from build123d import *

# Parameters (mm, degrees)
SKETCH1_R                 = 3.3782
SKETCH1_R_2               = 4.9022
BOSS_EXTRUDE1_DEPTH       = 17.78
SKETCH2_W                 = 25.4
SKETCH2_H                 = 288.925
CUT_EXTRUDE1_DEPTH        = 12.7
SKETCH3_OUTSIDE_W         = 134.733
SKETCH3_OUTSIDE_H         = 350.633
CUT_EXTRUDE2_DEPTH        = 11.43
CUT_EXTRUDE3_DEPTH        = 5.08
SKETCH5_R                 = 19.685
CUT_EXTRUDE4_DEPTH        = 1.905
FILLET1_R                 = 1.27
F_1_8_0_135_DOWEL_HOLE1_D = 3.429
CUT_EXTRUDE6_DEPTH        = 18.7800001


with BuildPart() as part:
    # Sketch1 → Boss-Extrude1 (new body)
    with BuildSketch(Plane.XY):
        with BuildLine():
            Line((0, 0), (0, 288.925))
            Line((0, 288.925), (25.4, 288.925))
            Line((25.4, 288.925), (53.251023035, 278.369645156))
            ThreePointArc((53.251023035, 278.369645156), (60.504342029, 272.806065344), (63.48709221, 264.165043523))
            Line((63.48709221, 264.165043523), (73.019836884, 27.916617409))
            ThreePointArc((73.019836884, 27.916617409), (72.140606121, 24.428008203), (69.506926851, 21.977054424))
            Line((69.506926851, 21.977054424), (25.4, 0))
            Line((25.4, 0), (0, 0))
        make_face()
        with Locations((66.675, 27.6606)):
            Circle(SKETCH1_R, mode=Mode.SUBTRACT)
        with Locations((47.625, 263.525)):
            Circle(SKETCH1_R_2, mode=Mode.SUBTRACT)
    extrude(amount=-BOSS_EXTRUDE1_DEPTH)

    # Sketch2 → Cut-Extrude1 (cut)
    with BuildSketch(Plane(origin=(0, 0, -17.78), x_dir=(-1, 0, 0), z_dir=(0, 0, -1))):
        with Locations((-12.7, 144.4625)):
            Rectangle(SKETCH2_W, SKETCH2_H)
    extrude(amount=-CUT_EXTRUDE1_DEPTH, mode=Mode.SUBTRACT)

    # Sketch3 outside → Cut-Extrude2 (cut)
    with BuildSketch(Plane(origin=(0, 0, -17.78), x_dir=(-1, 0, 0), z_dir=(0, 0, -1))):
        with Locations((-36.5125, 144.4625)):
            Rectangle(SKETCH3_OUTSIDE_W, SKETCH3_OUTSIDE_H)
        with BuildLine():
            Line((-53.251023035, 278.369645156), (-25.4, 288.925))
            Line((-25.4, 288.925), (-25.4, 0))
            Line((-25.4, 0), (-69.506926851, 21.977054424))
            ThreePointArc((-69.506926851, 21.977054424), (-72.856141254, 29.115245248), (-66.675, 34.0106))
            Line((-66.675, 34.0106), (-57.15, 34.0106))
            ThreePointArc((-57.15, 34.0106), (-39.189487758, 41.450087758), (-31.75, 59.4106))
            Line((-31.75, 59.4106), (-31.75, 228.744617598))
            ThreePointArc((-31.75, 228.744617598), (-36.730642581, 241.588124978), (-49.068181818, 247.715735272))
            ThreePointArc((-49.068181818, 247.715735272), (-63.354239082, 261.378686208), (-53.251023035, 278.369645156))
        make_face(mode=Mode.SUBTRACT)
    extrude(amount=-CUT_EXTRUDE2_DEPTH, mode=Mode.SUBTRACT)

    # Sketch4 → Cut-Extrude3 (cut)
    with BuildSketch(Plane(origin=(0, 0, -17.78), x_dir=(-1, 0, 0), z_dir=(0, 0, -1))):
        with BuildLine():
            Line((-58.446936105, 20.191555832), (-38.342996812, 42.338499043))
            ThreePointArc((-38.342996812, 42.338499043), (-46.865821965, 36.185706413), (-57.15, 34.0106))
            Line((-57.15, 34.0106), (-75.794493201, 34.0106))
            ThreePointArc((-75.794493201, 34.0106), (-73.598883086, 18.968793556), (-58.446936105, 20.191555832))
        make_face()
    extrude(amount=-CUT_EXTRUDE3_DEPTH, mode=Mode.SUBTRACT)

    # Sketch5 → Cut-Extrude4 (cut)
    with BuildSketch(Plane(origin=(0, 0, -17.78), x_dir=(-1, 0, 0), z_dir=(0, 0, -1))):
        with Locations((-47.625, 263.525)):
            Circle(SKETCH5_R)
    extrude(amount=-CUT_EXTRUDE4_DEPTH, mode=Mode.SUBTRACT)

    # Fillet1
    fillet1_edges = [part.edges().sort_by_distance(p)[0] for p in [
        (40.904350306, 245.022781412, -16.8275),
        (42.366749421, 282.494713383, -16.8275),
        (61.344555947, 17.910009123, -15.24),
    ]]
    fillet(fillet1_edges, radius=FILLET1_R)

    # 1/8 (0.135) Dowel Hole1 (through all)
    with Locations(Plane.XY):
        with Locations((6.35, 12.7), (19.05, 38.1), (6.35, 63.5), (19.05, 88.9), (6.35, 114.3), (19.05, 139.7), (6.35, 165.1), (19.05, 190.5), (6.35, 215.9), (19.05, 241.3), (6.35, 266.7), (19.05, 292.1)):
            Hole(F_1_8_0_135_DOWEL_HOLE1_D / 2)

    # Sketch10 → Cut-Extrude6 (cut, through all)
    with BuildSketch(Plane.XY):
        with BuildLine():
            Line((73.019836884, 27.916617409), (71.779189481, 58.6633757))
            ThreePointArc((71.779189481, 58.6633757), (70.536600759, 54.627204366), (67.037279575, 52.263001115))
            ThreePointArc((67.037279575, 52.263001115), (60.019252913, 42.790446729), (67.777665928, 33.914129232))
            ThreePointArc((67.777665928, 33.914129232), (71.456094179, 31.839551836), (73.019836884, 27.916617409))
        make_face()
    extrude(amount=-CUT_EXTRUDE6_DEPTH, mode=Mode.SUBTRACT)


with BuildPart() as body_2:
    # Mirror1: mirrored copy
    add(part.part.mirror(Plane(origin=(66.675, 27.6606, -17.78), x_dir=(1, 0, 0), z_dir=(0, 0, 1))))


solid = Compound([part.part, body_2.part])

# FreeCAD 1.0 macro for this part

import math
import FreeCAD as App
import Part
import Sketcher

V = App.Vector
Q = App.Units.Quantity


def edges_at(feature, points):
    """Names of the edges that pass closest to the given points."""
    edges = feature.Shape.Edges
    near = lambda p: min(range(len(edges)), key=lambda i: edges[i].distToShape(Part.Vertex(*p))[0])
    return sorted({f"Edge{near(p) + 1}" for p in points})


def add_polygon(sketch, points):
    """Adds a closed chain of lines whose ends are joined by coincident constraints."""
    first, n = sketch.GeometryCount, len(points)
    for a, b in zip(points, points[1:] + points[:1]):
        sketch.addGeometry(Part.LineSegment(App.Vector(*a, 0), App.Vector(*b, 0)), False)
    for i in range(n):
        sketch.addConstraint(Sketcher.Constraint("Coincident", first + i, 2, first + (i + 1) % n, 1))

doc = App.newDocument("Part")
body = doc.addObject("PartDesign::Body", "Body")

# Sketch on XY plane
sketch1 = body.newObject("Sketcher::SketchObject", "Sketch")
sketch1.AttachmentSupport = (doc.getObject("XY_Plane"), [""])
sketch1.MapMode = "FlatFace"
sketch1.addGeometry(Part.LineSegment(V(0, 288.925, 0), V(0, 0, 0)), False)
sketch1.addGeometry(Part.LineSegment(V(0, 0, 0), V(25.4, 0, 0)), False)
sketch1.addGeometry(Part.LineSegment(V(25.4, 0, 0), V(69.506927, 21.977054, 0)), False)
sketch1.addGeometry(Part.ArcOfCircle(Part.Circle(V(66.675, 27.6606, 0), V(0, 0, 1), 6.35), math.radians(-63.514409), math.radians(2.31066)), False)
sketch1.addGeometry(Part.LineSegment(V(73.019837, 27.916617, 0), V(63.487092, 264.165044, 0)), False)
sketch1.addGeometry(Part.ArcOfCircle(Part.Circle(V(47.625, 263.525, 0), V(0, 0, 1), 15.875), math.radians(2.31066), math.radians(69.243621)), False)
sketch1.addGeometry(Part.LineSegment(V(53.251023, 278.369645, 0), V(25.4, 288.925, 0)), False)
sketch1.addGeometry(Part.LineSegment(V(25.4, 288.925, 0), V(0, 288.925, 0)), False)
sketch1.addGeometry(Part.Circle(V(66.675, 27.6606, 0), V(0, 0, 1), 3.3782), False)
sketch1.addGeometry(Part.Circle(V(47.625, 263.525, 0), V(0, 0, 1), 4.9022), False)
sketch1.addConstraint(Sketcher.Constraint("Coincident", 0, 2, 1, 1))
sketch1.addConstraint(Sketcher.Constraint("Coincident", 1, 2, 2, 1))
sketch1.addConstraint(Sketcher.Constraint("Tangent", 2, 2, 3, 1))
sketch1.addConstraint(Sketcher.Constraint("Tangent", 3, 2, 4, 1))
sketch1.addConstraint(Sketcher.Constraint("Tangent", 4, 2, 5, 1))
sketch1.addConstraint(Sketcher.Constraint("Tangent", 5, 2, 6, 1))
sketch1.addConstraint(Sketcher.Constraint("Coincident", 6, 2, 7, 1))
sketch1.addConstraint(Sketcher.Constraint("Coincident", 7, 2, 0, 1))
sketch1.addConstraint(Sketcher.Constraint("Vertical", 0))
sketch1.addConstraint(Sketcher.Constraint("Horizontal", 1))
sketch1.addConstraint(Sketcher.Constraint("Horizontal", 7))
sketch1.addConstraint(Sketcher.Constraint("Coincident", 0, 2, -1, 1))
sketch1.addConstraint(Sketcher.Constraint("Coincident", 8, 3, 3, 3))
sketch1.addConstraint(Sketcher.Constraint("Coincident", 9, 3, 5, 3))
sketch1.addConstraint(Sketcher.Constraint("Vertical", 1, 2, 6, 2))
sketch1.addConstraint(Sketcher.Constraint("DistanceX", 1, 1, 1, 2, Q("1 in")))
sketch1.addConstraint(Sketcher.Constraint("Radius", 3, Q("0.25 in")))
sketch1.addConstraint(Sketcher.Constraint("Diameter", 8, Q("0.266 in")))
sketch1.addConstraint(Sketcher.Constraint("Diameter", 9, Q("0.386 in")))
sketch1.addConstraint(Sketcher.Constraint("Radius", 5, Q("0.625 in")))
sketch1.addConstraint(Sketcher.Constraint("DistanceY", 9, 3, 6, 2, Q("1 in")))
sketch1.addConstraint(Sketcher.Constraint("DistanceY", 0, 2, 0, 1, Q("11.375 in")))
sketch1.addConstraint(Sketcher.Constraint("DistanceX", 5, 3, 3, 3, Q("0.75 in")))
sketch1.addConstraint(Sketcher.Constraint("DistanceX", -1, 1, 3, 3, Q("2.625 in")))
sketch1.addConstraint(Sketcher.Constraint("DistanceY", -1, 1, 3, 3, Q("1.089 in")))
pad1 = body.newObject("PartDesign::Pad", "Pad")
pad1.Profile = sketch1
pad1.Length = Q("0.7 in")
pad1.Reversed = True

# Sketch on XY plane
sketch2 = body.newObject("Sketcher::SketchObject", "Sketch001")
sketch2.AttachmentSupport = (doc.getObject("XY_Plane"), [""])
sketch2.MapMode = "FlatFace"
sketch2.AttachmentOffset = App.Placement(V(0, 0, -0.7 * 25.4), App.Rotation())
add_polygon(sketch2, [(25.4, 288.925), (25.4, 0), (0, 0), (0, 288.925)])  # lines 0-3
sketch2.addConstraint(Sketcher.Constraint("Vertical", 0))
sketch2.addConstraint(Sketcher.Constraint("Horizontal", 1))
sketch2.addConstraint(Sketcher.Constraint("Vertical", 2))
sketch2.addConstraint(Sketcher.Constraint("Horizontal", 3))
sketch2.addConstraint(Sketcher.Constraint("Coincident", 1, 2, -1, 1))
sketch2.addConstraint(Sketcher.Constraint("DistanceX", 1, 2, 1, 1, Q("1 in")))
sketch2.addConstraint(Sketcher.Constraint("DistanceY", 0, 2, 0, 1, Q("11.375 in")))
pocket1 = body.newObject("PartDesign::Pocket", "Pocket")
pocket1.Profile = sketch2
pocket1.Length = Q("0.5 in")
pocket1.Reversed = True

# Sketch on XY plane
sketch3 = body.newObject("Sketcher::SketchObject", "Sketch002")
sketch3.AttachmentSupport = (doc.getObject("XY_Plane"), [""])
sketch3.MapMode = "FlatFace"
sketch3.AttachmentOffset = App.Placement(V(0, 0, -0.7 * 25.4), App.Rotation())
add_polygon(sketch3, [(103.879, 319.779), (103.879, -30.854), (-30.854, -30.854), (-30.854, 319.779)])  # lines 0-3
sketch3.addGeometry(Part.ArcOfCircle(Part.Circle(V(47.625, 263.525, 0), V(0, 0, 1), 15.875), math.radians(-84.784091), math.radians(69.243621)), False)  # 4
sketch3.addGeometry(Part.LineSegment(V(53.251023, 278.369645, 0), V(25.4, 288.925, 0)), False)  # 5
sketch3.addGeometry(Part.LineSegment(V(25.4, 288.925, 0), V(25.4, 0, 0)), False)  # 6
sketch3.addGeometry(Part.LineSegment(V(25.4, 0, 0), V(69.506927, 21.977054, 0)), False)  # 7
sketch3.addGeometry(Part.ArcOfCircle(Part.Circle(V(66.675, 27.6606, 0), V(0, 0, 1), 6.35), math.radians(-63.514409), math.radians(90)), False)  # 8
sketch3.addGeometry(Part.LineSegment(V(66.675, 34.0106, 0), V(57.15, 34.0106, 0)), False)  # 9
sketch3.addGeometry(Part.ArcOfCircle(Part.Circle(V(57.15, 59.4106, 0), V(0, 0, 1), 25.4), math.radians(180), math.radians(270)), False)  # 10
sketch3.addGeometry(Part.LineSegment(V(31.75, 59.4106, 0), V(31.75, 228.744618, 0)), False)  # 11
sketch3.addGeometry(Part.ArcOfCircle(Part.Circle(V(50.8, 228.744618, 0), V(0, 0, 1), 19.05), math.radians(95.215909), math.radians(180)), False)  # 12
sketch3.addConstraint(Sketcher.Constraint("Tangent", 4, 2, 5, 1))
sketch3.addConstraint(Sketcher.Constraint("Coincident", 5, 2, 6, 1))
sketch3.addConstraint(Sketcher.Constraint("Coincident", 6, 2, 7, 1))
sketch3.addConstraint(Sketcher.Constraint("Tangent", 7, 2, 8, 1))
sketch3.addConstraint(Sketcher.Constraint("Tangent", 8, 2, 9, 1))
sketch3.addConstraint(Sketcher.Constraint("Tangent", 9, 2, 10, 2))
sketch3.addConstraint(Sketcher.Constraint("Tangent", 10, 1, 11, 1))
sketch3.addConstraint(Sketcher.Constraint("Tangent", 11, 2, 12, 2))
sketch3.addConstraint(Sketcher.Constraint("Tangent", 12, 1, 4, 1))
sketch3.addConstraint(Sketcher.Constraint("Vertical", 0))
sketch3.addConstraint(Sketcher.Constraint("Horizontal", 1))
sketch3.addConstraint(Sketcher.Constraint("Vertical", 2))
sketch3.addConstraint(Sketcher.Constraint("Horizontal", 3))
sketch3.addConstraint(Sketcher.Constraint("Vertical", 6))
sketch3.addConstraint(Sketcher.Constraint("Horizontal", 9))
sketch3.addConstraint(Sketcher.Constraint("Vertical", 11))
sketch3.addConstraint(Sketcher.Constraint("PointOnObject", 6, 2, -1))
sketch3.addConstraint(Sketcher.Constraint("Radius", 10, Q("1 in")))
sketch3.addConstraint(Sketcher.Constraint("Radius", 8, Q("0.25 in")))
sketch3.addConstraint(Sketcher.Constraint("Radius", 12, Q("0.75 in")))
sketch3.addConstraint(Sketcher.Constraint("DistanceX", -1, 1, 12, 3, Q("2 in")))
sketch3.addConstraint(Sketcher.Constraint("DistanceX", -1, 1, 5, 2, Q("1 in")))
sketch3.addConstraint(Sketcher.Constraint("Radius", 4, Q("0.625 in")))
sketch3.addConstraint(Sketcher.Constraint("DistanceY", 4, 3, 5, 2, Q("1 in")))
sketch3.addConstraint(Sketcher.Constraint("DistanceX", 9, 2, 9, 1, Q("0.375 in")))
sketch3.addConstraint(Sketcher.Constraint("DistanceY", 6, 2, 6, 1, Q("11.375 in")))
sketch3.addConstraint(Sketcher.Constraint("DistanceX", 4, 3, 8, 3, Q("0.75 in")))
sketch3.addConstraint(Sketcher.Constraint("DistanceY", -1, 1, 8, 3, Q("1.089 in")))
sketch3.addConstraint(Sketcher.Constraint("DistanceX", 1, 2, 1, 1, Q("134.733 mm")))
sketch3.addConstraint(Sketcher.Constraint("DistanceY", 0, 2, 0, 1, Q("350.633 mm")))
sketch3.addConstraint(Sketcher.Constraint("DistanceX", -1, 1, 0, 2, Q("103.879 mm")))
sketch3.addConstraint(Sketcher.Constraint("DistanceY", 0, 2, -1, 1, Q("30.854 mm")))
pocket2 = body.newObject("PartDesign::Pocket", "Pocket001")
pocket2.Profile = sketch3
pocket2.Length = Q("0.45 in")
pocket2.Reversed = True

# Sketch on XY plane
sketch4 = body.newObject("Sketcher::SketchObject", "Sketch003")
sketch4.AttachmentSupport = (doc.getObject("XY_Plane"), [""])
sketch4.MapMode = "FlatFace"
sketch4.AttachmentOffset = App.Placement(V(0, 0, -0.7 * 25.4), App.Rotation())
sketch4.addGeometry(Part.LineSegment(V(58.446936, 20.191556, 0), V(38.342997, 42.338499, 0)), False)
sketch4.addGeometry(Part.ArcOfCircle(Part.Circle(V(57.15, 59.4106, 0), V(0, 0, 1), 25.4), math.radians(-137.76833), math.radians(-90)), False)
sketch4.addGeometry(Part.LineSegment(V(57.15, 34.0106, 0), V(75.794493, 34.0106, 0)), False)
sketch4.addGeometry(Part.ArcOfCircle(Part.Circle(V(66.675, 27.6606, 0), V(0, 0, 1), 11.1125), math.radians(-137.76833), math.radians(34.849905)), False)
sketch4.addConstraint(Sketcher.Constraint("Tangent", 0, 2, 1, 1))
sketch4.addConstraint(Sketcher.Constraint("Tangent", 1, 2, 2, 1))
sketch4.addConstraint(Sketcher.Constraint("Coincident", 2, 2, 3, 2))
sketch4.addConstraint(Sketcher.Constraint("Tangent", 3, 1, 0, 1))
sketch4.addConstraint(Sketcher.Constraint("Horizontal", 2))
sketch4.addConstraint(Sketcher.Constraint("Radius", 1, Q("1 in")))
sketch4.addConstraint(Sketcher.Constraint("Radius", 3, Q("0.4375 in")))
sketch4.addConstraint(Sketcher.Constraint("DistanceX", -1, 1, 1, 3, Q("2.25 in")))
sketch4.addConstraint(Sketcher.Constraint("DistanceY", 3, 3, 1, 3, Q("1.25 in")))
sketch4.addConstraint(Sketcher.Constraint("DistanceY", -1, 1, 1, 3, Q("2.339 in")))
sketch4.addConstraint(Sketcher.Constraint("DistanceX", -1, 1, 3, 3, Q("2.625 in")))
pocket3 = body.newObject("PartDesign::Pocket", "Pocket002")
pocket3.Profile = sketch4
pocket3.Length = Q("0.2 in")
pocket3.Reversed = True

# Sketch on XY plane
sketch5 = body.newObject("Sketcher::SketchObject", "Sketch004")
sketch5.AttachmentSupport = (doc.getObject("XY_Plane"), [""])
sketch5.MapMode = "FlatFace"
sketch5.AttachmentOffset = App.Placement(V(0, 0, -0.7 * 25.4), App.Rotation())
sketch5.addGeometry(Part.Circle(V(47.625, 263.525, 0), V(0, 0, 1), 19.685), False)
sketch5.addConstraint(Sketcher.Constraint("Diameter", 0, Q("1.55 in")))
sketch5.addConstraint(Sketcher.Constraint("DistanceX", -1, 1, 0, 3, Q("1.875 in")))
sketch5.addConstraint(Sketcher.Constraint("DistanceY", -1, 1, 0, 3, Q("10.375 in")))
pocket4 = body.newObject("PartDesign::Pocket", "Pocket003")
pocket4.Profile = sketch5
pocket4.Length = Q("0.075 in")
pocket4.Reversed = True
doc.recompute()

fillet = body.newObject("PartDesign::Fillet", "Fillet")
fillet.Base = (pocket4, edges_at(pocket4, [(40.904, 245.023, -16.828), (42.367, 282.495, -16.828), (61.345, 17.91, -15.24)]))
fillet.Radius = Q("0.05 in")

# Sketch on XY plane
sketch6 = body.newObject("Sketcher::SketchObject", "Sketch005")
sketch6.AttachmentSupport = (doc.getObject("XY_Plane"), [""])
sketch6.MapMode = "FlatFace"
sketch6.addGeometry(Part.Circle(V(6.35, 12.7, 0), V(0, 0, 1), 1.7145), False)
sketch6.addGeometry(Part.Circle(V(19.05, 38.1, 0), V(0, 0, 1), 1.7145), False)
sketch6.addGeometry(Part.Circle(V(6.35, 63.5, 0), V(0, 0, 1), 1.7145), False)
sketch6.addGeometry(Part.Circle(V(19.05, 88.9, 0), V(0, 0, 1), 1.7145), False)
sketch6.addGeometry(Part.Circle(V(6.35, 114.3, 0), V(0, 0, 1), 1.7145), False)
sketch6.addGeometry(Part.Circle(V(19.05, 139.7, 0), V(0, 0, 1), 1.7145), False)
sketch6.addGeometry(Part.Circle(V(6.35, 165.1, 0), V(0, 0, 1), 1.7145), False)
sketch6.addGeometry(Part.Circle(V(19.05, 190.5, 0), V(0, 0, 1), 1.7145), False)
sketch6.addGeometry(Part.Circle(V(6.35, 215.9, 0), V(0, 0, 1), 1.7145), False)
sketch6.addGeometry(Part.Circle(V(19.05, 241.3, 0), V(0, 0, 1), 1.7145), False)
sketch6.addGeometry(Part.Circle(V(6.35, 266.7, 0), V(0, 0, 1), 1.7145), False)
sketch6.addGeometry(Part.Circle(V(19.05, 292.1, 0), V(0, 0, 1), 1.7145), False)
sketch6.addConstraint(Sketcher.Constraint("Equal", 0, 1))
sketch6.addConstraint(Sketcher.Constraint("Equal", 1, 2))
sketch6.addConstraint(Sketcher.Constraint("Equal", 2, 3))
sketch6.addConstraint(Sketcher.Constraint("Equal", 3, 4))
sketch6.addConstraint(Sketcher.Constraint("Equal", 4, 5))
sketch6.addConstraint(Sketcher.Constraint("Equal", 5, 6))
sketch6.addConstraint(Sketcher.Constraint("Equal", 6, 7))
sketch6.addConstraint(Sketcher.Constraint("Equal", 7, 8))
sketch6.addConstraint(Sketcher.Constraint("Equal", 8, 9))
sketch6.addConstraint(Sketcher.Constraint("Equal", 9, 10))
sketch6.addConstraint(Sketcher.Constraint("Equal", 10, 11))
sketch6.addConstraint(Sketcher.Constraint("Vertical", 0, 3, 2, 3))
sketch6.addConstraint(Sketcher.Constraint("Vertical", 1, 3, 3, 3))
sketch6.addConstraint(Sketcher.Constraint("Vertical", 2, 3, 4, 3))
sketch6.addConstraint(Sketcher.Constraint("Vertical", 3, 3, 5, 3))
sketch6.addConstraint(Sketcher.Constraint("Vertical", 4, 3, 6, 3))
sketch6.addConstraint(Sketcher.Constraint("Vertical", 5, 3, 7, 3))
sketch6.addConstraint(Sketcher.Constraint("Vertical", 6, 3, 8, 3))
sketch6.addConstraint(Sketcher.Constraint("Vertical", 7, 3, 9, 3))
sketch6.addConstraint(Sketcher.Constraint("Vertical", 8, 3, 10, 3))
sketch6.addConstraint(Sketcher.Constraint("Vertical", 9, 3, 11, 3))
sketch6.addConstraint(Sketcher.Constraint("Diameter", 0, Q("0.135 in")))
sketch6.addConstraint(Sketcher.Constraint("DistanceY", 0, 3, 1, 3, Q("1 in")))
sketch6.addConstraint(Sketcher.Constraint("DistanceY", 1, 3, 2, 3, Q("1 in")))
sketch6.addConstraint(Sketcher.Constraint("DistanceY", 2, 3, 3, 3, Q("1 in")))
sketch6.addConstraint(Sketcher.Constraint("DistanceY", 3, 3, 4, 3, Q("1 in")))
sketch6.addConstraint(Sketcher.Constraint("DistanceY", 4, 3, 5, 3, Q("1 in")))
sketch6.addConstraint(Sketcher.Constraint("DistanceY", 5, 3, 6, 3, Q("1 in")))
sketch6.addConstraint(Sketcher.Constraint("DistanceY", 6, 3, 7, 3, Q("1 in")))
sketch6.addConstraint(Sketcher.Constraint("DistanceY", 7, 3, 8, 3, Q("1 in")))
sketch6.addConstraint(Sketcher.Constraint("DistanceY", 8, 3, 9, 3, Q("1 in")))
sketch6.addConstraint(Sketcher.Constraint("DistanceY", 9, 3, 10, 3, Q("1 in")))
sketch6.addConstraint(Sketcher.Constraint("DistanceY", 10, 3, 11, 3, Q("1 in")))
sketch6.addConstraint(Sketcher.Constraint("DistanceY", -1, 1, 0, 3, Q("0.5 in")))
sketch6.addConstraint(Sketcher.Constraint("DistanceX", 0, 3, 1, 3, Q("0.5 in")))
sketch6.addConstraint(Sketcher.Constraint("DistanceX", -1, 1, 0, 3, Q("0.25 in")))
doc.recompute()
hole = body.newObject("PartDesign::Hole", "Hole")
hole.Profile = sketch6
hole.ThreadType = "None"
hole.Diameter = Q("0.135 in")
hole.DepthType = "ThroughAll"

# Sketch on XY plane
sketch7 = body.newObject("Sketcher::SketchObject", "Sketch006")
sketch7.AttachmentSupport = (doc.getObject("XY_Plane"), [""])
sketch7.MapMode = "FlatFace"
sketch7.addGeometry(Part.LineSegment(V(73.019837, 27.916617, 0), V(71.779189, 58.663376, 0)), False)
sketch7.addGeometry(Part.ArcOfCircle(Part.Circle(V(65.434353, 58.407358, 0), V(0, 0, 1), 6.35), math.radians(-75.378679), math.radians(2.31066)), False)
sketch7.addGeometry(Part.ArcOfCircle(Part.Circle(V(69.409612, 43.169352, 0), V(0, 0, 1), 9.398), math.radians(104.621321), math.radians(260)), False)
sketch7.addGeometry(Part.ArcOfCircle(Part.Circle(V(66.675, 27.6606, 0), V(0, 0, 1), 6.35), math.radians(2.31066), math.radians(80)), False)
sketch7.addConstraint(Sketcher.Constraint("Coincident", 0, 2, 1, 2))
sketch7.addConstraint(Sketcher.Constraint("Coincident", 1, 1, 2, 1))
sketch7.addConstraint(Sketcher.Constraint("Coincident", 2, 2, 3, 2))
sketch7.addConstraint(Sketcher.Constraint("Coincident", 3, 1, 0, 1))
sketch7.addConstraint(Sketcher.Constraint("Radius", 1, Q("0.25 in")))
sketch7.addConstraint(Sketcher.Constraint("Radius", 2, Q("0.37 in")))
sketch7.addConstraint(Sketcher.Constraint("Radius", 3, Q("0.25 in")))
sketch7.addConstraint(Sketcher.Constraint("DistanceX", -1, 1, 3, 3, Q("2.625 in")))
sketch7.addConstraint(Sketcher.Constraint("DistanceY", -1, 1, 3, 3, Q("1.089 in")))
sketch7.addConstraint(Sketcher.Constraint("DistanceY", -1, 1, 1, 1, Q("52.263001 mm")))
sketch7.addConstraint(Sketcher.Constraint("Distance", 0, Q("30.771778 mm")))
sketch7.addConstraint(Sketcher.Constraint("DistanceY", -1, 1, 1, 3, Q("58.407358 mm")))
sketch7.addConstraint(Sketcher.Constraint("DistanceX", -1, 1, 2, 3, Q("69.409612 mm")))
sketch7.addConstraint(Sketcher.Constraint("DistanceX", -1, 1, 0, 2, Q("71.779189 mm")))
sketch7.addConstraint(Sketcher.Constraint("DistanceY", -1, 1, 2, 2, Q("33.914129 mm")))
pocket5 = body.newObject("PartDesign::Pocket", "Pocket004")
pocket5.Profile = sketch7
pocket5.Type = "ThroughAll"
body2 = doc.addObject("PartDesign::Body", "Body001")
doc.recompute()

mirroring = doc.addObject("Part::Mirroring", "Mirroring")
mirroring.Source = body
mirroring.Base = V(66.675, 27.6606, -17.78)
mirroring.Normal = V(0, 0, 1)
body2.BaseFeature = mirroring
doc.recompute()
mirroring.Visibility = False

doc.recompute()
